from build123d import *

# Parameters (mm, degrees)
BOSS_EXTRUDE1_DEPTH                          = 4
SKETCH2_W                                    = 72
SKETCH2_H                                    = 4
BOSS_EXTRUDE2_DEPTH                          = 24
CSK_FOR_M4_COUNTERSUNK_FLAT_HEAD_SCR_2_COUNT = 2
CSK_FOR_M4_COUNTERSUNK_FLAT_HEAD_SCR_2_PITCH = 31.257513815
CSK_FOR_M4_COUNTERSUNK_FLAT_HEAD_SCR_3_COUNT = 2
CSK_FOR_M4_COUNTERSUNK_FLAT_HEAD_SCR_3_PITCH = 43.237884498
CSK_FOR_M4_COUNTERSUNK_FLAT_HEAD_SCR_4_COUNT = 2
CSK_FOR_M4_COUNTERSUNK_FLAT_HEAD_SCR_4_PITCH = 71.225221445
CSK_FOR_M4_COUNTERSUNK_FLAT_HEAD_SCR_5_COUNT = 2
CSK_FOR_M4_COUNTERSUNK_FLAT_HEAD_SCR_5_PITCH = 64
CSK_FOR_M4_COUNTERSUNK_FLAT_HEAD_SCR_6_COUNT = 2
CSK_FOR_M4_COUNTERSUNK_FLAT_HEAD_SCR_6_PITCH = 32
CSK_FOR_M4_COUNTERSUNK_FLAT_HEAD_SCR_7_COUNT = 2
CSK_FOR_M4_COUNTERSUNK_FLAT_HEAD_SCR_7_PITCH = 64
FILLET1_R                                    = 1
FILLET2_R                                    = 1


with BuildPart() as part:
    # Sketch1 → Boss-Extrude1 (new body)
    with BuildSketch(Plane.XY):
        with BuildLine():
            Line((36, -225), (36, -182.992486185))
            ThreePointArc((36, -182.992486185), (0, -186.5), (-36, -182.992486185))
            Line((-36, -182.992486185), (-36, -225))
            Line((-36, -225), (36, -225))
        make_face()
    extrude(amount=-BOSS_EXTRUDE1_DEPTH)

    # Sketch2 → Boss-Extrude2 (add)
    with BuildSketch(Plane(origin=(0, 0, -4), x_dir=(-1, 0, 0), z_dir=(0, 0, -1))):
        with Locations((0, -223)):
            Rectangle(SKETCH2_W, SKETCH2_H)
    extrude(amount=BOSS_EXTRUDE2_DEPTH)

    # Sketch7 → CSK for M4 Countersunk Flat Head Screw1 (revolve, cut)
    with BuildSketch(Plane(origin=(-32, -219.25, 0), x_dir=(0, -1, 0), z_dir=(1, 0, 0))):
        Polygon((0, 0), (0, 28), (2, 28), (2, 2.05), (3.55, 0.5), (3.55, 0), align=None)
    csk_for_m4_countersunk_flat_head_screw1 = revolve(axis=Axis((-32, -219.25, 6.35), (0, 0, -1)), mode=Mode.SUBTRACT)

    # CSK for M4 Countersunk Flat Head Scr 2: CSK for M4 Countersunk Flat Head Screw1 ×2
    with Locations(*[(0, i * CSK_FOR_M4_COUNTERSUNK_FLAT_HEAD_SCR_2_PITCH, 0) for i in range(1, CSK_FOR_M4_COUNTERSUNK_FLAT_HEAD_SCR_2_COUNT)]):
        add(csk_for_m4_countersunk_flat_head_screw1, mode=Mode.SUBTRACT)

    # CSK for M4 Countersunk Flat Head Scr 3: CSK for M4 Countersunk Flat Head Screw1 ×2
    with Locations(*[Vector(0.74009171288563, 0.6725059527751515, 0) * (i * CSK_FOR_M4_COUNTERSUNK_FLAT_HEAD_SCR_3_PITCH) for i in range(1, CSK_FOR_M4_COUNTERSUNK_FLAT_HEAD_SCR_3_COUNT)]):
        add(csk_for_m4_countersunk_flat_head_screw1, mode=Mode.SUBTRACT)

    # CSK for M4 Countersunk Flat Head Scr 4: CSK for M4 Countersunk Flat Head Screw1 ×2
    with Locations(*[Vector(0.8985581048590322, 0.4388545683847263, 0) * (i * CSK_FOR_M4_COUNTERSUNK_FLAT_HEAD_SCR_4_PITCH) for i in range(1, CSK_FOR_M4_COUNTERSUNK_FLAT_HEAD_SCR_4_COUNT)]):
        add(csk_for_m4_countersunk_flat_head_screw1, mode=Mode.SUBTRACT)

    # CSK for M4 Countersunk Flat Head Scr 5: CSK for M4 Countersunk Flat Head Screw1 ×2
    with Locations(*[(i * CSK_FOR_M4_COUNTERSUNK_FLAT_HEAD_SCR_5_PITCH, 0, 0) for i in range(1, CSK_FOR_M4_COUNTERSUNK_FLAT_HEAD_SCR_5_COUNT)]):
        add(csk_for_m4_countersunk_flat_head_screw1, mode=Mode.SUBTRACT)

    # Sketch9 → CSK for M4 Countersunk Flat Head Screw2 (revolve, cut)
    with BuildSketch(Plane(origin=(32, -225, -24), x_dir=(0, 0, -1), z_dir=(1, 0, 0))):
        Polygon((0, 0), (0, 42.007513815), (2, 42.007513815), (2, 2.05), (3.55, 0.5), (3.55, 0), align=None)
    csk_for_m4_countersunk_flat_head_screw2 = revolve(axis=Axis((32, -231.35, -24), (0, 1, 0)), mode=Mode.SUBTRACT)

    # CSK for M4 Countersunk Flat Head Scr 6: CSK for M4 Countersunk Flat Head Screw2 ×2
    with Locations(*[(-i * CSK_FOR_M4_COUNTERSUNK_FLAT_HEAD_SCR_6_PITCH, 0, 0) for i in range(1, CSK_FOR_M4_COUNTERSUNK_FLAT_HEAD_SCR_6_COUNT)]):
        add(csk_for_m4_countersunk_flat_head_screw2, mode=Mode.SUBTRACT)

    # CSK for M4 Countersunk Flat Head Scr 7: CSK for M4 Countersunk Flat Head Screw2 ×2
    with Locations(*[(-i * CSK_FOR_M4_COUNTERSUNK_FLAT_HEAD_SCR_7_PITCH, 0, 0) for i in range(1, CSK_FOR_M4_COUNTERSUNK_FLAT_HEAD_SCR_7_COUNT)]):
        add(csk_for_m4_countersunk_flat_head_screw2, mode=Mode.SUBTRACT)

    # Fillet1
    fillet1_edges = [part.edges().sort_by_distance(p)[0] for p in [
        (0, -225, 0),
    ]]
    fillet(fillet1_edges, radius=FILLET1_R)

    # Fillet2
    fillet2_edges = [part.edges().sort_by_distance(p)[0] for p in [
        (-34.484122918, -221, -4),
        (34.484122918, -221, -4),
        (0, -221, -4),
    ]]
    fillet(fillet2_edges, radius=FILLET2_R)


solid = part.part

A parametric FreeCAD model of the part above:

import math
import FreeCAD as App
import Part
import Sketcher
Q = App.Units.Quantity


def edges_at(feature, points):
    """Names of the edges that pass closest to the given points."""
    edges = feature.Shape.Edges
    near = lambda p: min(range(len(edges)), key=lambda i: edges[i].distToShape(Part.Vertex(*p))[0])
    return sorted({f"Edge{near(p) + 1}" for p in points})


def add_polygon(sketch, points):
    """Adds a closed chain of lines whose ends are joined by coincident constraints."""
    first, n = sketch.GeometryCount, len(points)
    for a, b in zip(points, points[1:] + points[:1]):
        sketch.addGeometry(Part.LineSegment(App.Vector(*a, 0), App.Vector(*b, 0)), False)
    for i in range(n):
        sketch.addConstraint(Sketcher.Constraint("Coincident", first + i, 2, first + (i + 1) % n, 1))

doc = App.newDocument("Part")
params = doc.addObject("Spreadsheet::Sheet", "Params")
for row, (alias, value) in enumerate([
    ("sketch1_radius", "186.5 mm"),
    ("sketch1_width", "72 mm"),
    ("pad1_length", "4 mm"),
    ("sketch2_width", "72 mm"),
    ("sketch2_height", "4 mm"),
    ("pad2_length", "24 mm"),
    ("sketch3_width", "2 mm"),
    ("sketch3_height", "28 mm"),
    ("sketch3_height2", "0.5 mm"),
    ("sketch3_width2", "3.55 mm"),
    ("groove_angle", "360 deg"),
    ("linearpattern_pitch", "31.257514 mm"),
    ("linearpattern2_pitch", "43.237884 mm"),
    ("linearpattern3_pitch", "71.225221 mm"),
    ("linearpattern4_pitch", "64 mm"),
    ("sketch4_height", "2 mm"),
    ("sketch4_width", "0.5 mm"),
    ("sketch4_height2", "3.55 mm"),
    ("groove2_angle", "360 deg"),
    ("linearpattern5_pitch", "32 mm"),
    ("linearpattern6_pitch", "64 mm"),
    ("fillet_radius", "1 mm"),
    ("fillet2_radius", "1 mm"),
], start=1):
    params.set(f"A{row}", alias)
    params.set(f"B{row}", "=" + value)
    params.setAlias(f"B{row}", alias)

body = doc.addObject("PartDesign::Body", "Body")

# Sketch on XY plane
sketch1 = doc.addObject("Sketcher::SketchObject", "Sketch")
body.addObject(sketch1)
sketch1.AttachmentSupport = (doc.XY_Plane, [""])
sketch1.MapMode = "FlatFace"
sketch1.addGeometry(Part.LineSegment(App.Vector(36, -225, 0), App.Vector(36, -183, 0)), False)
sketch1.addGeometry(Part.ArcOfCircle(Part.Circle(App.Vector(0, 0, 0), App.Vector(0, 0, 1), 187), math.radians(-101), math.radians(-79)), False)
sketch1.addGeometry(Part.LineSegment(App.Vector(-36, -183, 0), App.Vector(-36, -225, 0)), False)
sketch1.addGeometry(Part.LineSegment(App.Vector(-36, -225, 0), App.Vector(36, -225, 0)), False)
sketch1.addConstraint(Sketcher.Constraint("Coincident", 0, 2, 1, 2))
sketch1.addConstraint(Sketcher.Constraint("Coincident", 1, 1, 2, 1))
sketch1.addConstraint(Sketcher.Constraint("Coincident", 2, 2, 3, 1))
sketch1.addConstraint(Sketcher.Constraint("Coincident", 3, 2, 0, 1))
sketch1.addConstraint(Sketcher.Constraint("Vertical", 0))
sketch1.addConstraint(Sketcher.Constraint("Vertical", 2))
sketch1.addConstraint(Sketcher.Constraint("Horizontal", 3))
sketch1.addConstraint(Sketcher.Constraint("Coincident", 1, 3, -1, 1))
sketch1.addConstraint(Sketcher.Constraint("Horizontal", 0, 2, 1, 1))
sketch1.addConstraint(Sketcher.Constraint("Radius", 1, 186.5))
sketch1.addConstraint(Sketcher.Constraint("DistanceX", 3, 1, 3, 2, 72.0))
sketch1.addConstraint(Sketcher.Constraint("DistanceY", 2, 2, -1, 1, 225.0))
sketch1.setExpression("Constraints[9]", "Params.sketch1_radius")
sketch1.setExpression("Constraints[10]", "Params.sketch1_width")
pad1 = doc.addObject("PartDesign::Pad", "Pad")
body.addObject(pad1)
pad1.Profile = sketch1
pad1.setExpression("Length", "Params.pad1_length")
pad1.Reversed = True

# Sketch on XY plane
sketch2 = doc.addObject("Sketcher::SketchObject", "Sketch001")
body.addObject(sketch2)
sketch2.AttachmentSupport = (doc.XY_Plane, [""])
sketch2.MapMode = "FlatFace"
sketch2.AttachmentOffset = App.Placement(App.Vector(0, 0, -4), App.Rotation())
add_polygon(sketch2, [(36, -221), (36, -225), (-36, -225), (-36, -221)])  # lines 0-3
sketch2.addConstraint(Sketcher.Constraint("Vertical", 0))
sketch2.addConstraint(Sketcher.Constraint("Horizontal", 1))
sketch2.addConstraint(Sketcher.Constraint("Vertical", 2))
sketch2.addConstraint(Sketcher.Constraint("Horizontal", 3))
sketch2.addConstraint(Sketcher.Constraint("DistanceX", 1, 2, 1, 1, 72.0))
sketch2.addConstraint(Sketcher.Constraint("DistanceY", 0, 2, 0, 1, 4.0))
sketch2.addConstraint(Sketcher.Constraint("DistanceX", -1, 1, 0, 2, 36.0))
sketch2.addConstraint(Sketcher.Constraint("DistanceY", 0, 2, -1, 1, 225.0))
sketch2.setExpression("Constraints[8]", "Params.sketch2_width")
sketch2.setExpression("Constraints[9]", "Params.sketch2_height")
pad2 = doc.addObject("PartDesign::Pad", "Pad001")
body.addObject(pad2)
pad2.Profile = sketch2
pad2.setExpression("Length", "Params.pad2_length")
pad2.Reversed = True

# Sketch on YZ plane
sketch3 = doc.addObject("Sketcher::SketchObject", "Sketch002")
body.addObject(sketch3)
sketch3.AttachmentSupport = (doc.YZ_Plane, [""])
sketch3.MapMode = "FlatFace"
sketch3.AttachmentOffset = App.Placement(App.Vector(0, 0, -32), App.Rotation())
add_polygon(sketch3, [(-219.2, -28), (-219.2, 0), (-222.8, 0), (-222.8, -0.5), (-221.2, -2), (-221.2, -28)])  # lines 0-5
sketch3.addGeometry(Part.LineSegment(App.Vector(-219.2, 0, 0), App.Vector(-219.2, -28, 0)), True)  # axis
sketch3.addConstraint(Sketcher.Constraint("Vertical", 0))
sketch3.addConstraint(Sketcher.Constraint("Horizontal", 1))
sketch3.addConstraint(Sketcher.Constraint("Vertical", 2))
sketch3.addConstraint(Sketcher.Constraint("Vertical", 4))
sketch3.addConstraint(Sketcher.Constraint("Horizontal", 5))
sketch3.addConstraint(Sketcher.Constraint("Vertical", 6))
sketch3.addConstraint(Sketcher.Constraint("Coincident", 6, 1, 0, 2))
sketch3.addConstraint(Sketcher.Constraint("PointOnObject", 0, 2, -1))
sketch3.addConstraint(Sketcher.Constraint("Horizontal", 4, 2, 6, 2))
sketch3.addConstraint(Sketcher.Constraint("DistanceX", 5, 1, 5, 2, 2.0))
sketch3.addConstraint(Sketcher.Constraint("DistanceY", 0, 1, 0, 2, 28.0))
sketch3.addConstraint(Sketcher.Constraint("Angle", 3, Q("-45 deg")))
sketch3.addConstraint(Sketcher.Constraint("DistanceY", 2, 2, 2, 1, 0.5))
sketch3.addConstraint(Sketcher.Constraint("DistanceX", 1, 2, 1, 1, 3.55))
sketch3.addConstraint(Sketcher.Constraint("DistanceX", 1, 2, -1, 1, 222.8))
sketch3.setExpression("Constraints[15]", "Params.sketch3_width")
sketch3.setExpression("Constraints[16]", "Params.sketch3_height")
sketch3.setExpression("Constraints[18]", "Params.sketch3_height2")
sketch3.setExpression("Constraints[19]", "Params.sketch3_width2")
groove = doc.addObject("PartDesign::Groove", "Groove")
body.addObject(groove)
groove.Profile = sketch3
groove.ReferenceAxis = (sketch3, ["Axis0"])
groove.setExpression("Angle", "Params.groove_angle")
doc.recompute()

linearpattern = doc.addObject("PartDesign::LinearPattern", "LinearPattern")
body.addObject(linearpattern)
linearpattern.Originals = [groove]
linearpattern.Direction = (doc.Y_Axis, [""])
linearpattern.Mode = "offset"
linearpattern.setExpression("Offset", "Params.linearpattern_pitch")
linearpattern.Occurrences = 2
body.Tip = linearpattern
doc.recompute()

datumline = doc.addObject("PartDesign::Line", "DatumLine")
body.addObject(datumline)
datumline.Placement = App.Placement(App.Vector(0, 0, 0), App.Rotation(App.Vector(0, 0, 1), App.Vector(0.740091713, 0.672505953, 0)))
linearpattern2 = doc.addObject("PartDesign::LinearPattern", "LinearPattern001")
body.addObject(linearpattern2)
linearpattern2.Originals = [groove]
linearpattern2.Direction = (datumline, [""])
linearpattern2.Mode = "offset"
linearpattern2.setExpression("Offset", "Params.linearpattern2_pitch")
linearpattern2.Occurrences = 2
body.Tip = linearpattern2
doc.recompute()

datumline2 = doc.addObject("PartDesign::Line", "DatumLine001")
body.addObject(datumline2)
datumline2.Placement = App.Placement(App.Vector(0, 0, 0), App.Rotation(App.Vector(0, 0, 1), App.Vector(0.898558105, 0.438854568, 0)))
linearpattern3 = doc.addObject("PartDesign::LinearPattern", "LinearPattern002")
body.addObject(linearpattern3)
linearpattern3.Originals = [groove]
linearpattern3.Direction = (datumline2, [""])
linearpattern3.Mode = "offset"
linearpattern3.setExpression("Offset", "Params.linearpattern3_pitch")
linearpattern3.Occurrences = 2
body.Tip = linearpattern3
doc.recompute()

linearpattern4 = doc.addObject("PartDesign::LinearPattern", "LinearPattern003")
body.addObject(linearpattern4)
linearpattern4.Originals = [groove]
linearpattern4.Direction = (doc.X_Axis, [""])
linearpattern4.Mode = "offset"
linearpattern4.setExpression("Offset", "Params.linearpattern4_pitch")
linearpattern4.Occurrences = 2
body.Tip = linearpattern4

# Sketch on YZ plane
sketch4 = doc.addObject("Sketcher::SketchObject", "Sketch003")
body.addObject(sketch4)
sketch4.AttachmentSupport = (doc.YZ_Plane, [""])
sketch4.MapMode = "FlatFace"
sketch4.AttachmentOffset = App.Placement(App.Vector(0, 0, 32), App.Rotation())
add_polygon(sketch4, [(-183, -24), (-225, -24), (-225, -27.6), (-224.5, -27.6), (-222.9, -26), (-183, -26)])  # lines 0-5
sketch4.addGeometry(Part.LineSegment(App.Vector(-225, -24, 0), App.Vector(-183, -24, 0)), True)  # axis
sketch4.addConstraint(Sketcher.Constraint("Horizontal", 0))
sketch4.addConstraint(Sketcher.Constraint("Vertical", 1))
sketch4.addConstraint(Sketcher.Constraint("Horizontal", 2))
sketch4.addConstraint(Sketcher.Constraint("Horizontal", 4))
sketch4.addConstraint(Sketcher.Constraint("Vertical", 5))
sketch4.addConstraint(Sketcher.Constraint("Horizontal", 6))
sketch4.addConstraint(Sketcher.Constraint("Coincident", 6, 1, 0, 2))
sketch4.addConstraint(Sketcher.Constraint("Vertical", 4, 2, 6, 2))
sketch4.addConstraint(Sketcher.Constraint("DistanceY", 5, 1, 5, 2, 2.0))
sketch4.addConstraint(Sketcher.Constraint("Angle", 3, Q("45 deg")))
sketch4.addConstraint(Sketcher.Constraint("DistanceX", 2, 1, 2, 2, 0.5))
sketch4.addConstraint(Sketcher.Constraint("DistanceX", 0, 2, -1, 1, 225.0))
sketch4.addConstraint(Sketcher.Constraint("DistanceY", 0, 2, -1, 1, 24.0))
sketch4.addConstraint(Sketcher.Constraint("DistanceY", 1, 2, 1, 1, 3.55))
sketch4.addConstraint(Sketcher.Constraint("DistanceX", 0, 2, 0, 1, 42.007514))
sketch4.setExpression("Constraints[14]", "Params.sketch4_height")
sketch4.setExpression("Constraints[16]", "Params.sketch4_width")
sketch4.setExpression("Constraints[19]", "Params.sketch4_height2")
groove2 = doc.addObject("PartDesign::Groove", "Groove001")
body.addObject(groove2)
groove2.Profile = sketch4
groove2.ReferenceAxis = (sketch4, ["Axis0"])
groove2.setExpression("Angle", "Params.groove2_angle")
doc.recompute()

linearpattern5 = doc.addObject("PartDesign::LinearPattern", "LinearPattern004")
body.addObject(linearpattern5)
linearpattern5.Originals = [groove2]
linearpattern5.Direction = (doc.X_Axis, [""])
linearpattern5.Mode = "offset"
linearpattern5.setExpression("Offset", "Params.linearpattern5_pitch")
linearpattern5.Occurrences = 2
linearpattern5.Reversed = True
body.Tip = linearpattern5
doc.recompute()

linearpattern6 = doc.addObject("PartDesign::LinearPattern", "LinearPattern005")
body.addObject(linearpattern6)
linearpattern6.Originals = [groove2]
linearpattern6.Direction = (doc.X_Axis, [""])
linearpattern6.Mode = "offset"
linearpattern6.setExpression("Offset", "Params.linearpattern6_pitch")
linearpattern6.Occurrences = 2
linearpattern6.Reversed = True
body.Tip = linearpattern6
doc.recompute()

fillet = doc.addObject("PartDesign::Fillet", "Fillet")
body.addObject(fillet)
fillet.Base = (linearpattern6, edges_at(linearpattern6, [(0, -225, 0)]))
fillet.setExpression("Radius", "Params.fillet_radius")
doc.recompute()

fillet2 = doc.addObject("PartDesign::Fillet", "Fillet001")
body.addObject(fillet2)
fillet2.Base = (fillet, edges_at(fillet, [(-34.484, -221, -4), (34.484, -221, -4), (0, -221, -4)]))
fillet2.setExpression("Radius", "Params.fillet2_radius")

doc.recompute()
